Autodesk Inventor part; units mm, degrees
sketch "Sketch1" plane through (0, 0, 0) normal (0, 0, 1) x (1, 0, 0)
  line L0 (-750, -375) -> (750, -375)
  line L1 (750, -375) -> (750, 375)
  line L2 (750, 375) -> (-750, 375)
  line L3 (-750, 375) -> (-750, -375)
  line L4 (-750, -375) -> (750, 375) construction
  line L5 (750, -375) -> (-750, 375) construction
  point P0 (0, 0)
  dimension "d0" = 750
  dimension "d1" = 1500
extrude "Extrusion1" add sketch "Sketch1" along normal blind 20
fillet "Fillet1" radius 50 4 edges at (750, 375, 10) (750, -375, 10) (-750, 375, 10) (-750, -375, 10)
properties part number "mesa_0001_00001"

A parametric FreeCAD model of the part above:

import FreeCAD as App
import Part
import Sketcher

V = App.Vector
Q = App.Units.Quantity


def edges_at(feature, points):
    """Names of the edges that pass closest to the given points."""
    edges = feature.Shape.Edges
    near = lambda p: min(range(len(edges)), key=lambda i: edges[i].distToShape(Part.Vertex(*p))[0])
    return sorted({f"Edge{near(p) + 1}" for p in points})


def add_polygon(sketch, points):
    """Adds a closed chain of lines whose ends are joined by coincident constraints."""
    first, n = sketch.GeometryCount, len(points)
    for a, b in zip(points, points[1:] + points[:1]):
        sketch.addGeometry(Part.LineSegment(App.Vector(*a, 0), App.Vector(*b, 0)), False)
    for i in range(n):
        sketch.addConstraint(Sketcher.Constraint("Coincident", first + i, 2, first + (i + 1) % n, 1))

doc = App.newDocument("Part")
body = doc.addObject("PartDesign::Body", "Body")

sketch1 = body.newObject("Sketcher::SketchObject", "Sketch")
sketch1.AttachmentSupport = (doc.getObject("XY_Plane"), [""])
sketch1.MapMode = "FlatFace"
add_polygon(sketch1, [(-750, 375), (-750, -375), (750, -375), (750, 375)])
sketch1.addConstraint([
    Sketcher.Constraint("Vertical", 0),
    Sketcher.Constraint("Horizontal", 1),
    Sketcher.Constraint("Vertical", 2),
    Sketcher.Constraint("Horizontal", 3),
    Sketcher.Constraint("Symmetric", 0, 2, 2, 2, -1, 1),
    Sketcher.Constraint("DistanceX", 1, 1, 1, 2, Q("1500 mm")),
    Sketcher.Constraint("DistanceY", 0, 2, 0, 1, Q("750 mm")),
])
pad1 = body.newObject("PartDesign::Pad", "Pad")
pad1.Profile = sketch1
pad1.Length = 20
doc.recompute()

fillet = body.newObject("PartDesign::Fillet", "Fillet")
fillet.Base = (pad1, edges_at(pad1, [
    (750, 375, 10),
    (750, -375, 10),
    (-750, 375, 10),
    (-750, -375, 10),
]))
fillet.Radius = 50

doc.recompute()
